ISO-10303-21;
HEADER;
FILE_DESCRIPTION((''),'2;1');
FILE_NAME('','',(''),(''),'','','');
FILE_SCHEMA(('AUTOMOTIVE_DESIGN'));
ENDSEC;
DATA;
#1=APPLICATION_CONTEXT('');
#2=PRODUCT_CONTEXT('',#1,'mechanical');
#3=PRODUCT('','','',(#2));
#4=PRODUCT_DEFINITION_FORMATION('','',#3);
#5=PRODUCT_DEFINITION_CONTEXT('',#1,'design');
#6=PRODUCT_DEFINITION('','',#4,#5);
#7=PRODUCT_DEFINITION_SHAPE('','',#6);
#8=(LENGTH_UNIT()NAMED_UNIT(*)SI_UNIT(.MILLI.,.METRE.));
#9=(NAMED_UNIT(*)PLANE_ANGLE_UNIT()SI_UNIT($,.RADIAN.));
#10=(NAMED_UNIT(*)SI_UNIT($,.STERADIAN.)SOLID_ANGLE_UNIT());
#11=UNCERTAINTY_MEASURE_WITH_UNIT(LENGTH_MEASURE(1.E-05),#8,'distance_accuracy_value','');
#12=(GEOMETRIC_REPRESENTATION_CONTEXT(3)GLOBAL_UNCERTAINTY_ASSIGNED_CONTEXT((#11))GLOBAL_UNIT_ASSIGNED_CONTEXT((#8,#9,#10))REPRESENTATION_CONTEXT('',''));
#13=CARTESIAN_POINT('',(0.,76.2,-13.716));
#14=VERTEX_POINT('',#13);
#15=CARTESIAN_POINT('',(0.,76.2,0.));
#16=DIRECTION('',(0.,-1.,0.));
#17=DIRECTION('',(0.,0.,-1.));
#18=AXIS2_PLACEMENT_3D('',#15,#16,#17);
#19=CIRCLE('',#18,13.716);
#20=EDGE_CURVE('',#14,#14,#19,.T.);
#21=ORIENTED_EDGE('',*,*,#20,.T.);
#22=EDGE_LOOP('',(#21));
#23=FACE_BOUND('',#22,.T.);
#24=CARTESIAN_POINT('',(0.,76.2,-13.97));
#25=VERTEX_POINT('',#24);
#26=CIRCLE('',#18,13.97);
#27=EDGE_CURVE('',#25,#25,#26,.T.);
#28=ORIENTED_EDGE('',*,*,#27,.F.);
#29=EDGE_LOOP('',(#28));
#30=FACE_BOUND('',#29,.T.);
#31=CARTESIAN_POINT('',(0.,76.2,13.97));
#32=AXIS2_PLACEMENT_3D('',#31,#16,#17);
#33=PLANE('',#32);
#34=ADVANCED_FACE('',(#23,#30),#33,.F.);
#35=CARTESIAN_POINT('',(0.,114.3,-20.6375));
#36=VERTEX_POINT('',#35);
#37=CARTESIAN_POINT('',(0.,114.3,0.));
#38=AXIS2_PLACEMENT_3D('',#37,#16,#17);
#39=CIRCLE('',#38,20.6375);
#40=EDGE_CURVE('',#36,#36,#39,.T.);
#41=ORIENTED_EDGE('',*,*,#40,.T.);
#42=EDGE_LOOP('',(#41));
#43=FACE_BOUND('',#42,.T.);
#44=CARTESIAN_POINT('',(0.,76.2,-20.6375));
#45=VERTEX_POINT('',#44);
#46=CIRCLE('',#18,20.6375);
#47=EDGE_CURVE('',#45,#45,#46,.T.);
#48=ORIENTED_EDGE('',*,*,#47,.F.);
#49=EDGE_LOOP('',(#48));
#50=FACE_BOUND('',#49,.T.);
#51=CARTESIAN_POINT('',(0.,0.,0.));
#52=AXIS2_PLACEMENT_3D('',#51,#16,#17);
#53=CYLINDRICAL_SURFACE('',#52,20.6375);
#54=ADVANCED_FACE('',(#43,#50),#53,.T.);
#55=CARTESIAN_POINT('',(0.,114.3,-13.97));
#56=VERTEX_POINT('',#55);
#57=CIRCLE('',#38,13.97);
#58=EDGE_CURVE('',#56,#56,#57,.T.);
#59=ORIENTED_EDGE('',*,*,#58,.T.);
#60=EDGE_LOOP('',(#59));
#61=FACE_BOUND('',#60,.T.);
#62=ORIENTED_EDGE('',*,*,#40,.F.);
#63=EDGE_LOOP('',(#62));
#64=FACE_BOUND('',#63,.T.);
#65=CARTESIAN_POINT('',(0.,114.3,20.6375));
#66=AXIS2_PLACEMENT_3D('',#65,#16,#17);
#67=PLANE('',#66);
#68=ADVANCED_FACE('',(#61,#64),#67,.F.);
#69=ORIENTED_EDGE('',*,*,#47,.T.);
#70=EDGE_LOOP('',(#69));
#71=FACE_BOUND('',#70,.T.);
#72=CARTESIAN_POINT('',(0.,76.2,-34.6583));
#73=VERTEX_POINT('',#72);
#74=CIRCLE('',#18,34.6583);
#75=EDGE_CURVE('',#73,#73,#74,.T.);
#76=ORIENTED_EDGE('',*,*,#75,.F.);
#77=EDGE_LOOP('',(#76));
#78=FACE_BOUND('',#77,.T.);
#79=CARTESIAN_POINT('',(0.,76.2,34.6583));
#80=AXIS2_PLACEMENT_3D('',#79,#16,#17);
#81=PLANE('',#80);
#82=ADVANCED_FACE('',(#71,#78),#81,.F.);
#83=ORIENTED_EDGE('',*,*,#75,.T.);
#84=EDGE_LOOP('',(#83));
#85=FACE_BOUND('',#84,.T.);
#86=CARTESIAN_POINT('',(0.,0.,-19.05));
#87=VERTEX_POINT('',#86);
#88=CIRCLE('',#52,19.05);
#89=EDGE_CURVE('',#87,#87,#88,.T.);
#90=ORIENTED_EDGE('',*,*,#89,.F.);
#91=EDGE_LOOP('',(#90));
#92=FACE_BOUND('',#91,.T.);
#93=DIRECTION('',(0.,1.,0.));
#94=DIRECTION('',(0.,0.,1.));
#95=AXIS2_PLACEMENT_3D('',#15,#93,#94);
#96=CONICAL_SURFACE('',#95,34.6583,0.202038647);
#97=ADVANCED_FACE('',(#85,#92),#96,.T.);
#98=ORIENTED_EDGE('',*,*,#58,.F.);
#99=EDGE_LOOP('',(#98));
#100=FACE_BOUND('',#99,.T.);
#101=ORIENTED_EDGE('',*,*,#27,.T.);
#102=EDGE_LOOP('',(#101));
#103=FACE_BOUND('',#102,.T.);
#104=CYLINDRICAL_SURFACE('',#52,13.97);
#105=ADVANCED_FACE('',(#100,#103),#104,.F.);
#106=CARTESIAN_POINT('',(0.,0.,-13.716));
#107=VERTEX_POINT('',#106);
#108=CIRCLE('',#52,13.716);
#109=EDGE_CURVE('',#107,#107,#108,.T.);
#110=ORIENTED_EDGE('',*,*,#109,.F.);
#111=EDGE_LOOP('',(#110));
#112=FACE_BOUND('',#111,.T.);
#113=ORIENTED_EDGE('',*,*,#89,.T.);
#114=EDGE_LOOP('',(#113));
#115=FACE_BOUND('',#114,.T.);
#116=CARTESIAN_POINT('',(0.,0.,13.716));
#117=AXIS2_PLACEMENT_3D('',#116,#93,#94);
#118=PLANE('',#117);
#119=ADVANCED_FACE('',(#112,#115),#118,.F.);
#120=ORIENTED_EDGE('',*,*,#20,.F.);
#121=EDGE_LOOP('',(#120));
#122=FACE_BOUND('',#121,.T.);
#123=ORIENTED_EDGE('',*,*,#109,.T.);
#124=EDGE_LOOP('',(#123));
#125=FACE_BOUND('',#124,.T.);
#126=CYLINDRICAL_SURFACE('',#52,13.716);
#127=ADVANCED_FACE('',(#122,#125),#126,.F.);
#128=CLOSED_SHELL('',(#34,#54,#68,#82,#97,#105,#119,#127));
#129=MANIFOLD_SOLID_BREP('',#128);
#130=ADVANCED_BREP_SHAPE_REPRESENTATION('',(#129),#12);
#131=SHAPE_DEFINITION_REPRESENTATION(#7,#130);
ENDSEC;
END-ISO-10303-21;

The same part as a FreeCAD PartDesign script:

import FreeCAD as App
import Part
import Sketcher
from FreeCAD import Vector
Q = App.Units.Quantity


def add_polygon(sketch, points):
    """Adds a closed chain of lines whose ends are joined by coincident constraints."""
    first, n = sketch.GeometryCount, len(points)
    for a, b in zip(points, points[1:] + points[:1]):
        sketch.addGeometry(Part.LineSegment(App.Vector(*a, 0), App.Vector(*b, 0)), False)
    for i in range(n):
        sketch.addConstraint(Sketcher.Constraint("Coincident", first + i, 2, first + (i + 1) % n, 1))

doc = App.newDocument("Part")
params = doc.addObject("Spreadsheet::Sheet", "Params")
for row, (alias, value) in enumerate([
    ("sketch1_width", "3 in"),
    ("sketch1_width2", "1.5 in"),
    ("sketch1_height", "0.21 in"),
    ("sketch1_height2", "0.01 in"),
    ("sketch1_height3", "0.552 in"),
    ("revolution_angle", "360 deg"),
], start=1):
    params.set(f"A{row}", alias)
    params.set(f"B{row}", "=" + value)
    params.setAlias(f"B{row}", alias)

body = doc.addObject("PartDesign::Body", "Body")

# Sketch on YZ plane
sketch1 = body.newObject("Sketcher::SketchObject", "Sketch")
sketch1.AttachmentSupport = (doc.getObject("YZ_Plane"), [""])
sketch1.MapMode = "FlatFace"
add_polygon(sketch1, [(0, 19.05), (0, 13.72), (76.2, 13.72), (76.2, 13.97), (114.3, 13.97), (114.3, 20.64), (76.2, 20.64), (76.2, 34.66)])  # lines 0-7
sketch1.addConstraint([
    Sketcher.Constraint("Vertical", 0),
    Sketcher.Constraint("Horizontal", 1),
    Sketcher.Constraint("Vertical", 2),
    Sketcher.Constraint("Horizontal", 3),
    Sketcher.Constraint("Vertical", 4),
    Sketcher.Constraint("Horizontal", 5),
    Sketcher.Constraint("Vertical", 6),
    Sketcher.Constraint("PointOnObject", 0, 2, -2),
    Sketcher.Constraint("Vertical", 2, 2, 5, 2),
    Sketcher.Constraint("DistanceX", 1, 1, 1, 2, Q("3 in")),
    Sketcher.Constraint("DistanceX", 3, 1, 3, 2, Q("1.5 in")),
    Sketcher.Constraint("DistanceY", 0, 2, 0, 1, Q("0.21 in")),
    Sketcher.Constraint("DistanceY", 2, 1, 2, 2, Q("0.01 in")),
    Sketcher.Constraint("DistanceY", 6, 1, 6, 2, Q("0.552 in")),
    Sketcher.Constraint("DistanceY", -1, 1, 0, 2, Q("0.54 in")),
    Sketcher.Constraint("DistanceY", 4, 1, 4, 2, Q("0.2625 in")),
])
sketch1.setExpression("Constraints[17]", "Params.sketch1_width")
sketch1.setExpression("Constraints[18]", "Params.sketch1_width2")
sketch1.setExpression("Constraints[19]", "Params.sketch1_height")
sketch1.setExpression("Constraints[20]", "Params.sketch1_height2")
sketch1.setExpression("Constraints[21]", "Params.sketch1_height3")
revolution = body.newObject("PartDesign::Revolution", "Revolution")
revolution.Profile = sketch1
revolution.ReferenceAxis = (sketch1, ["H_Axis"])
revolution.setExpression("Angle", "Params.revolution_angle")

doc.recompute()
